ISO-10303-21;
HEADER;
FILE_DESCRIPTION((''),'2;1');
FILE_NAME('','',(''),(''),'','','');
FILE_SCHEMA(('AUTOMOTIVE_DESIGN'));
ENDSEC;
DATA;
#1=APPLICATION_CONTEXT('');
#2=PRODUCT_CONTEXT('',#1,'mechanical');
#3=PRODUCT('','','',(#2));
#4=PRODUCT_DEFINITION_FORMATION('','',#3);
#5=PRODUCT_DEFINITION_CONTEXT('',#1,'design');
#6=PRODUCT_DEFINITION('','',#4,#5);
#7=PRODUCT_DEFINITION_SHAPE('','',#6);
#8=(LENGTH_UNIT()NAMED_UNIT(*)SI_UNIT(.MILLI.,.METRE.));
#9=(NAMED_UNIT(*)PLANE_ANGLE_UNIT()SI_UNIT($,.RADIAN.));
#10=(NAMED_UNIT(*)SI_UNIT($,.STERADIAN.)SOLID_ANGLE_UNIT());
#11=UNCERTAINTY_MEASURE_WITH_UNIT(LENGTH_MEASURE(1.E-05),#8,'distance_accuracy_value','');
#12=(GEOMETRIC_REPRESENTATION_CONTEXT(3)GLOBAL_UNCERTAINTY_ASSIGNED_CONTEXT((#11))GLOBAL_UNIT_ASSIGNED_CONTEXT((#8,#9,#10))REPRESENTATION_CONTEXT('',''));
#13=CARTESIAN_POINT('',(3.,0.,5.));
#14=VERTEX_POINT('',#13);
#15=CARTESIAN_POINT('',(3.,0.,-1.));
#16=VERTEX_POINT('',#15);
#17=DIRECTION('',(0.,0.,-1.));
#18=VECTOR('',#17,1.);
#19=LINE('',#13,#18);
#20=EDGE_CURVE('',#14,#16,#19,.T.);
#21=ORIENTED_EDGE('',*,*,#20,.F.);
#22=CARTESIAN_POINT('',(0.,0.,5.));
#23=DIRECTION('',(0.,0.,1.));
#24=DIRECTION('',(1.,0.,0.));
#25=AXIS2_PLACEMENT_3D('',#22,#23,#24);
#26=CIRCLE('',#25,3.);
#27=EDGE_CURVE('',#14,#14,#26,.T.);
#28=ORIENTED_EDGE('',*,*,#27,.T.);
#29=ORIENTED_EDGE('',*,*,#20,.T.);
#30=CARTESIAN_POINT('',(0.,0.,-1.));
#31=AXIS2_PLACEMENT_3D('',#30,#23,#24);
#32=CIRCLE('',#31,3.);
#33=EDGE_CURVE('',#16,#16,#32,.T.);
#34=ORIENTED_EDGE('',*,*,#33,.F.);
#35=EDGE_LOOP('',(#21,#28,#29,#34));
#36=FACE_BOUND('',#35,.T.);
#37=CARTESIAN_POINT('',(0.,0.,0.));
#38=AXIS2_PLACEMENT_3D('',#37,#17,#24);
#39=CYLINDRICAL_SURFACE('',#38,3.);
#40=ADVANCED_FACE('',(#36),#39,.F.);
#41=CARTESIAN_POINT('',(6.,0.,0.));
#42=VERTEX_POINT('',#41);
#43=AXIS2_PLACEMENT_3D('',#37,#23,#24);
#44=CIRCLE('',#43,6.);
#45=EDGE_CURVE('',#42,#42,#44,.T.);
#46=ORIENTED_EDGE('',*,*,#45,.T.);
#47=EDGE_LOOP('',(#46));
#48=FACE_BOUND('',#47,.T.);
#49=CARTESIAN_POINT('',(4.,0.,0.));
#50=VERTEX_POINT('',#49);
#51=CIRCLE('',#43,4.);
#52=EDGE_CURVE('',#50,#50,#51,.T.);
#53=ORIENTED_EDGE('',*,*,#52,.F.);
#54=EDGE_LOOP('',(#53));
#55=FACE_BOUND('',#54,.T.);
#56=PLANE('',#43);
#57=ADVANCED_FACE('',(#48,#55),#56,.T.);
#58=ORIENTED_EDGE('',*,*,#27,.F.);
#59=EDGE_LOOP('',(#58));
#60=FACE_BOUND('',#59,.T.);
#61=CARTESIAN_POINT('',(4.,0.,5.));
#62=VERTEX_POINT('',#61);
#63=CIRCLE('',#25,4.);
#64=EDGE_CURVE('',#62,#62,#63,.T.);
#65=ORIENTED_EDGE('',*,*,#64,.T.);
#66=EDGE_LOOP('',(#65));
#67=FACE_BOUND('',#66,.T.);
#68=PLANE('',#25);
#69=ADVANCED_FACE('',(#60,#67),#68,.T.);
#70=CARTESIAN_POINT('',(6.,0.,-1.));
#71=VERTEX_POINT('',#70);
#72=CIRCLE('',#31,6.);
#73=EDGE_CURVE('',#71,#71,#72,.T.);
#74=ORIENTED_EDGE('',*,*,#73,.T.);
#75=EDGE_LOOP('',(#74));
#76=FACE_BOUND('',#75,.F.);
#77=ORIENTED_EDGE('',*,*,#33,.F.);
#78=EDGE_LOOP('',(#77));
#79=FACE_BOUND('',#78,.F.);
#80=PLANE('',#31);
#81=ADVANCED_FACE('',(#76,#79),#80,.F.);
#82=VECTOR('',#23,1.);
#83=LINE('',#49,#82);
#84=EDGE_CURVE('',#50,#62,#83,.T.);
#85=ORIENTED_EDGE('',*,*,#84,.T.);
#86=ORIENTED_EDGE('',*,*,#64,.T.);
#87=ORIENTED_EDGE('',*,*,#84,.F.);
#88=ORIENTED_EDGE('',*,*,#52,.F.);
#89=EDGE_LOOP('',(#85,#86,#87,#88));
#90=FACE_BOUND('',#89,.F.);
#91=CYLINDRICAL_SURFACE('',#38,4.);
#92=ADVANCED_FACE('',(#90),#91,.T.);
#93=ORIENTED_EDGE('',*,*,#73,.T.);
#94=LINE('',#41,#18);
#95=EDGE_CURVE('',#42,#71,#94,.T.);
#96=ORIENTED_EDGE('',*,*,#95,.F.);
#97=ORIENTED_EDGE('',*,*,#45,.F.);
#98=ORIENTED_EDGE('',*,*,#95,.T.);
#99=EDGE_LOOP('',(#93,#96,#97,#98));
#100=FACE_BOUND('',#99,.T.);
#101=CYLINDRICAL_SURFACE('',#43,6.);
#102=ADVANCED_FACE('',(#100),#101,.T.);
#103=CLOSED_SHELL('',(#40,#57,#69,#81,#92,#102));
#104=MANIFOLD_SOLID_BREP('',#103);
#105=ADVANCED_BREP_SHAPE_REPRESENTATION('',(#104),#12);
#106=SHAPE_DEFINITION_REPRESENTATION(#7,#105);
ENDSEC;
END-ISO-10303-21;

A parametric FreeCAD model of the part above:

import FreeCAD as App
import Part
import Sketcher

V = App.Vector

doc = App.newDocument("Part")
body = doc.addObject("PartDesign::Body", "Body")

# Sketch on XY plane
sketch1 = body.newObject("Sketcher::SketchObject", "Sketch")
sketch1.AttachmentSupport = (doc.getObject("XY_Plane"), [""])
sketch1.MapMode = "FlatFace"
sketch1.addGeometry([
    Part.Circle(V(0, 0, 0), V(0, 0, 1), 4),
    Part.Circle(V(0, 0, 0), V(0, 0, 1), 3),
], False)
sketch1.addConstraint([
    Sketcher.Constraint("Coincident", 0, 3, -1, 1),
    Sketcher.Constraint("Coincident", 1, 3, -1, 1),
    Sketcher.Constraint("Diameter", 0, 8.0),
    Sketcher.Constraint("Diameter", 1, 6.0),
])
pad1 = body.newObject("PartDesign::Pad", "Pad")
pad1.Profile = sketch1
pad1.Length = 5

# Sketch on XY plane
sketch2 = body.newObject("Sketcher::SketchObject", "Sketch001")
sketch2.AttachmentSupport = (doc.getObject("XY_Plane"), [""])
sketch2.MapMode = "FlatFace"
sketch2.addGeometry([
    Part.Circle(V(0, 0, 0), V(0, 0, 1), 6),
    Part.Circle(V(0, 0, 0), V(0, 0, 1), 3),
], False)
sketch2.addConstraint([
    Sketcher.Constraint("Coincident", 0, 3, -1, 1),
    Sketcher.Constraint("Coincident", 1, 3, -1, 1),
    Sketcher.Constraint("Diameter", 0, 12.0),
    Sketcher.Constraint("Diameter", 1, 6.0),
])
pad2 = body.newObject("PartDesign::Pad", "Pad001")
pad2.Profile = sketch2
pad2.Length = 1
pad2.Reversed = True

doc.recompute()
